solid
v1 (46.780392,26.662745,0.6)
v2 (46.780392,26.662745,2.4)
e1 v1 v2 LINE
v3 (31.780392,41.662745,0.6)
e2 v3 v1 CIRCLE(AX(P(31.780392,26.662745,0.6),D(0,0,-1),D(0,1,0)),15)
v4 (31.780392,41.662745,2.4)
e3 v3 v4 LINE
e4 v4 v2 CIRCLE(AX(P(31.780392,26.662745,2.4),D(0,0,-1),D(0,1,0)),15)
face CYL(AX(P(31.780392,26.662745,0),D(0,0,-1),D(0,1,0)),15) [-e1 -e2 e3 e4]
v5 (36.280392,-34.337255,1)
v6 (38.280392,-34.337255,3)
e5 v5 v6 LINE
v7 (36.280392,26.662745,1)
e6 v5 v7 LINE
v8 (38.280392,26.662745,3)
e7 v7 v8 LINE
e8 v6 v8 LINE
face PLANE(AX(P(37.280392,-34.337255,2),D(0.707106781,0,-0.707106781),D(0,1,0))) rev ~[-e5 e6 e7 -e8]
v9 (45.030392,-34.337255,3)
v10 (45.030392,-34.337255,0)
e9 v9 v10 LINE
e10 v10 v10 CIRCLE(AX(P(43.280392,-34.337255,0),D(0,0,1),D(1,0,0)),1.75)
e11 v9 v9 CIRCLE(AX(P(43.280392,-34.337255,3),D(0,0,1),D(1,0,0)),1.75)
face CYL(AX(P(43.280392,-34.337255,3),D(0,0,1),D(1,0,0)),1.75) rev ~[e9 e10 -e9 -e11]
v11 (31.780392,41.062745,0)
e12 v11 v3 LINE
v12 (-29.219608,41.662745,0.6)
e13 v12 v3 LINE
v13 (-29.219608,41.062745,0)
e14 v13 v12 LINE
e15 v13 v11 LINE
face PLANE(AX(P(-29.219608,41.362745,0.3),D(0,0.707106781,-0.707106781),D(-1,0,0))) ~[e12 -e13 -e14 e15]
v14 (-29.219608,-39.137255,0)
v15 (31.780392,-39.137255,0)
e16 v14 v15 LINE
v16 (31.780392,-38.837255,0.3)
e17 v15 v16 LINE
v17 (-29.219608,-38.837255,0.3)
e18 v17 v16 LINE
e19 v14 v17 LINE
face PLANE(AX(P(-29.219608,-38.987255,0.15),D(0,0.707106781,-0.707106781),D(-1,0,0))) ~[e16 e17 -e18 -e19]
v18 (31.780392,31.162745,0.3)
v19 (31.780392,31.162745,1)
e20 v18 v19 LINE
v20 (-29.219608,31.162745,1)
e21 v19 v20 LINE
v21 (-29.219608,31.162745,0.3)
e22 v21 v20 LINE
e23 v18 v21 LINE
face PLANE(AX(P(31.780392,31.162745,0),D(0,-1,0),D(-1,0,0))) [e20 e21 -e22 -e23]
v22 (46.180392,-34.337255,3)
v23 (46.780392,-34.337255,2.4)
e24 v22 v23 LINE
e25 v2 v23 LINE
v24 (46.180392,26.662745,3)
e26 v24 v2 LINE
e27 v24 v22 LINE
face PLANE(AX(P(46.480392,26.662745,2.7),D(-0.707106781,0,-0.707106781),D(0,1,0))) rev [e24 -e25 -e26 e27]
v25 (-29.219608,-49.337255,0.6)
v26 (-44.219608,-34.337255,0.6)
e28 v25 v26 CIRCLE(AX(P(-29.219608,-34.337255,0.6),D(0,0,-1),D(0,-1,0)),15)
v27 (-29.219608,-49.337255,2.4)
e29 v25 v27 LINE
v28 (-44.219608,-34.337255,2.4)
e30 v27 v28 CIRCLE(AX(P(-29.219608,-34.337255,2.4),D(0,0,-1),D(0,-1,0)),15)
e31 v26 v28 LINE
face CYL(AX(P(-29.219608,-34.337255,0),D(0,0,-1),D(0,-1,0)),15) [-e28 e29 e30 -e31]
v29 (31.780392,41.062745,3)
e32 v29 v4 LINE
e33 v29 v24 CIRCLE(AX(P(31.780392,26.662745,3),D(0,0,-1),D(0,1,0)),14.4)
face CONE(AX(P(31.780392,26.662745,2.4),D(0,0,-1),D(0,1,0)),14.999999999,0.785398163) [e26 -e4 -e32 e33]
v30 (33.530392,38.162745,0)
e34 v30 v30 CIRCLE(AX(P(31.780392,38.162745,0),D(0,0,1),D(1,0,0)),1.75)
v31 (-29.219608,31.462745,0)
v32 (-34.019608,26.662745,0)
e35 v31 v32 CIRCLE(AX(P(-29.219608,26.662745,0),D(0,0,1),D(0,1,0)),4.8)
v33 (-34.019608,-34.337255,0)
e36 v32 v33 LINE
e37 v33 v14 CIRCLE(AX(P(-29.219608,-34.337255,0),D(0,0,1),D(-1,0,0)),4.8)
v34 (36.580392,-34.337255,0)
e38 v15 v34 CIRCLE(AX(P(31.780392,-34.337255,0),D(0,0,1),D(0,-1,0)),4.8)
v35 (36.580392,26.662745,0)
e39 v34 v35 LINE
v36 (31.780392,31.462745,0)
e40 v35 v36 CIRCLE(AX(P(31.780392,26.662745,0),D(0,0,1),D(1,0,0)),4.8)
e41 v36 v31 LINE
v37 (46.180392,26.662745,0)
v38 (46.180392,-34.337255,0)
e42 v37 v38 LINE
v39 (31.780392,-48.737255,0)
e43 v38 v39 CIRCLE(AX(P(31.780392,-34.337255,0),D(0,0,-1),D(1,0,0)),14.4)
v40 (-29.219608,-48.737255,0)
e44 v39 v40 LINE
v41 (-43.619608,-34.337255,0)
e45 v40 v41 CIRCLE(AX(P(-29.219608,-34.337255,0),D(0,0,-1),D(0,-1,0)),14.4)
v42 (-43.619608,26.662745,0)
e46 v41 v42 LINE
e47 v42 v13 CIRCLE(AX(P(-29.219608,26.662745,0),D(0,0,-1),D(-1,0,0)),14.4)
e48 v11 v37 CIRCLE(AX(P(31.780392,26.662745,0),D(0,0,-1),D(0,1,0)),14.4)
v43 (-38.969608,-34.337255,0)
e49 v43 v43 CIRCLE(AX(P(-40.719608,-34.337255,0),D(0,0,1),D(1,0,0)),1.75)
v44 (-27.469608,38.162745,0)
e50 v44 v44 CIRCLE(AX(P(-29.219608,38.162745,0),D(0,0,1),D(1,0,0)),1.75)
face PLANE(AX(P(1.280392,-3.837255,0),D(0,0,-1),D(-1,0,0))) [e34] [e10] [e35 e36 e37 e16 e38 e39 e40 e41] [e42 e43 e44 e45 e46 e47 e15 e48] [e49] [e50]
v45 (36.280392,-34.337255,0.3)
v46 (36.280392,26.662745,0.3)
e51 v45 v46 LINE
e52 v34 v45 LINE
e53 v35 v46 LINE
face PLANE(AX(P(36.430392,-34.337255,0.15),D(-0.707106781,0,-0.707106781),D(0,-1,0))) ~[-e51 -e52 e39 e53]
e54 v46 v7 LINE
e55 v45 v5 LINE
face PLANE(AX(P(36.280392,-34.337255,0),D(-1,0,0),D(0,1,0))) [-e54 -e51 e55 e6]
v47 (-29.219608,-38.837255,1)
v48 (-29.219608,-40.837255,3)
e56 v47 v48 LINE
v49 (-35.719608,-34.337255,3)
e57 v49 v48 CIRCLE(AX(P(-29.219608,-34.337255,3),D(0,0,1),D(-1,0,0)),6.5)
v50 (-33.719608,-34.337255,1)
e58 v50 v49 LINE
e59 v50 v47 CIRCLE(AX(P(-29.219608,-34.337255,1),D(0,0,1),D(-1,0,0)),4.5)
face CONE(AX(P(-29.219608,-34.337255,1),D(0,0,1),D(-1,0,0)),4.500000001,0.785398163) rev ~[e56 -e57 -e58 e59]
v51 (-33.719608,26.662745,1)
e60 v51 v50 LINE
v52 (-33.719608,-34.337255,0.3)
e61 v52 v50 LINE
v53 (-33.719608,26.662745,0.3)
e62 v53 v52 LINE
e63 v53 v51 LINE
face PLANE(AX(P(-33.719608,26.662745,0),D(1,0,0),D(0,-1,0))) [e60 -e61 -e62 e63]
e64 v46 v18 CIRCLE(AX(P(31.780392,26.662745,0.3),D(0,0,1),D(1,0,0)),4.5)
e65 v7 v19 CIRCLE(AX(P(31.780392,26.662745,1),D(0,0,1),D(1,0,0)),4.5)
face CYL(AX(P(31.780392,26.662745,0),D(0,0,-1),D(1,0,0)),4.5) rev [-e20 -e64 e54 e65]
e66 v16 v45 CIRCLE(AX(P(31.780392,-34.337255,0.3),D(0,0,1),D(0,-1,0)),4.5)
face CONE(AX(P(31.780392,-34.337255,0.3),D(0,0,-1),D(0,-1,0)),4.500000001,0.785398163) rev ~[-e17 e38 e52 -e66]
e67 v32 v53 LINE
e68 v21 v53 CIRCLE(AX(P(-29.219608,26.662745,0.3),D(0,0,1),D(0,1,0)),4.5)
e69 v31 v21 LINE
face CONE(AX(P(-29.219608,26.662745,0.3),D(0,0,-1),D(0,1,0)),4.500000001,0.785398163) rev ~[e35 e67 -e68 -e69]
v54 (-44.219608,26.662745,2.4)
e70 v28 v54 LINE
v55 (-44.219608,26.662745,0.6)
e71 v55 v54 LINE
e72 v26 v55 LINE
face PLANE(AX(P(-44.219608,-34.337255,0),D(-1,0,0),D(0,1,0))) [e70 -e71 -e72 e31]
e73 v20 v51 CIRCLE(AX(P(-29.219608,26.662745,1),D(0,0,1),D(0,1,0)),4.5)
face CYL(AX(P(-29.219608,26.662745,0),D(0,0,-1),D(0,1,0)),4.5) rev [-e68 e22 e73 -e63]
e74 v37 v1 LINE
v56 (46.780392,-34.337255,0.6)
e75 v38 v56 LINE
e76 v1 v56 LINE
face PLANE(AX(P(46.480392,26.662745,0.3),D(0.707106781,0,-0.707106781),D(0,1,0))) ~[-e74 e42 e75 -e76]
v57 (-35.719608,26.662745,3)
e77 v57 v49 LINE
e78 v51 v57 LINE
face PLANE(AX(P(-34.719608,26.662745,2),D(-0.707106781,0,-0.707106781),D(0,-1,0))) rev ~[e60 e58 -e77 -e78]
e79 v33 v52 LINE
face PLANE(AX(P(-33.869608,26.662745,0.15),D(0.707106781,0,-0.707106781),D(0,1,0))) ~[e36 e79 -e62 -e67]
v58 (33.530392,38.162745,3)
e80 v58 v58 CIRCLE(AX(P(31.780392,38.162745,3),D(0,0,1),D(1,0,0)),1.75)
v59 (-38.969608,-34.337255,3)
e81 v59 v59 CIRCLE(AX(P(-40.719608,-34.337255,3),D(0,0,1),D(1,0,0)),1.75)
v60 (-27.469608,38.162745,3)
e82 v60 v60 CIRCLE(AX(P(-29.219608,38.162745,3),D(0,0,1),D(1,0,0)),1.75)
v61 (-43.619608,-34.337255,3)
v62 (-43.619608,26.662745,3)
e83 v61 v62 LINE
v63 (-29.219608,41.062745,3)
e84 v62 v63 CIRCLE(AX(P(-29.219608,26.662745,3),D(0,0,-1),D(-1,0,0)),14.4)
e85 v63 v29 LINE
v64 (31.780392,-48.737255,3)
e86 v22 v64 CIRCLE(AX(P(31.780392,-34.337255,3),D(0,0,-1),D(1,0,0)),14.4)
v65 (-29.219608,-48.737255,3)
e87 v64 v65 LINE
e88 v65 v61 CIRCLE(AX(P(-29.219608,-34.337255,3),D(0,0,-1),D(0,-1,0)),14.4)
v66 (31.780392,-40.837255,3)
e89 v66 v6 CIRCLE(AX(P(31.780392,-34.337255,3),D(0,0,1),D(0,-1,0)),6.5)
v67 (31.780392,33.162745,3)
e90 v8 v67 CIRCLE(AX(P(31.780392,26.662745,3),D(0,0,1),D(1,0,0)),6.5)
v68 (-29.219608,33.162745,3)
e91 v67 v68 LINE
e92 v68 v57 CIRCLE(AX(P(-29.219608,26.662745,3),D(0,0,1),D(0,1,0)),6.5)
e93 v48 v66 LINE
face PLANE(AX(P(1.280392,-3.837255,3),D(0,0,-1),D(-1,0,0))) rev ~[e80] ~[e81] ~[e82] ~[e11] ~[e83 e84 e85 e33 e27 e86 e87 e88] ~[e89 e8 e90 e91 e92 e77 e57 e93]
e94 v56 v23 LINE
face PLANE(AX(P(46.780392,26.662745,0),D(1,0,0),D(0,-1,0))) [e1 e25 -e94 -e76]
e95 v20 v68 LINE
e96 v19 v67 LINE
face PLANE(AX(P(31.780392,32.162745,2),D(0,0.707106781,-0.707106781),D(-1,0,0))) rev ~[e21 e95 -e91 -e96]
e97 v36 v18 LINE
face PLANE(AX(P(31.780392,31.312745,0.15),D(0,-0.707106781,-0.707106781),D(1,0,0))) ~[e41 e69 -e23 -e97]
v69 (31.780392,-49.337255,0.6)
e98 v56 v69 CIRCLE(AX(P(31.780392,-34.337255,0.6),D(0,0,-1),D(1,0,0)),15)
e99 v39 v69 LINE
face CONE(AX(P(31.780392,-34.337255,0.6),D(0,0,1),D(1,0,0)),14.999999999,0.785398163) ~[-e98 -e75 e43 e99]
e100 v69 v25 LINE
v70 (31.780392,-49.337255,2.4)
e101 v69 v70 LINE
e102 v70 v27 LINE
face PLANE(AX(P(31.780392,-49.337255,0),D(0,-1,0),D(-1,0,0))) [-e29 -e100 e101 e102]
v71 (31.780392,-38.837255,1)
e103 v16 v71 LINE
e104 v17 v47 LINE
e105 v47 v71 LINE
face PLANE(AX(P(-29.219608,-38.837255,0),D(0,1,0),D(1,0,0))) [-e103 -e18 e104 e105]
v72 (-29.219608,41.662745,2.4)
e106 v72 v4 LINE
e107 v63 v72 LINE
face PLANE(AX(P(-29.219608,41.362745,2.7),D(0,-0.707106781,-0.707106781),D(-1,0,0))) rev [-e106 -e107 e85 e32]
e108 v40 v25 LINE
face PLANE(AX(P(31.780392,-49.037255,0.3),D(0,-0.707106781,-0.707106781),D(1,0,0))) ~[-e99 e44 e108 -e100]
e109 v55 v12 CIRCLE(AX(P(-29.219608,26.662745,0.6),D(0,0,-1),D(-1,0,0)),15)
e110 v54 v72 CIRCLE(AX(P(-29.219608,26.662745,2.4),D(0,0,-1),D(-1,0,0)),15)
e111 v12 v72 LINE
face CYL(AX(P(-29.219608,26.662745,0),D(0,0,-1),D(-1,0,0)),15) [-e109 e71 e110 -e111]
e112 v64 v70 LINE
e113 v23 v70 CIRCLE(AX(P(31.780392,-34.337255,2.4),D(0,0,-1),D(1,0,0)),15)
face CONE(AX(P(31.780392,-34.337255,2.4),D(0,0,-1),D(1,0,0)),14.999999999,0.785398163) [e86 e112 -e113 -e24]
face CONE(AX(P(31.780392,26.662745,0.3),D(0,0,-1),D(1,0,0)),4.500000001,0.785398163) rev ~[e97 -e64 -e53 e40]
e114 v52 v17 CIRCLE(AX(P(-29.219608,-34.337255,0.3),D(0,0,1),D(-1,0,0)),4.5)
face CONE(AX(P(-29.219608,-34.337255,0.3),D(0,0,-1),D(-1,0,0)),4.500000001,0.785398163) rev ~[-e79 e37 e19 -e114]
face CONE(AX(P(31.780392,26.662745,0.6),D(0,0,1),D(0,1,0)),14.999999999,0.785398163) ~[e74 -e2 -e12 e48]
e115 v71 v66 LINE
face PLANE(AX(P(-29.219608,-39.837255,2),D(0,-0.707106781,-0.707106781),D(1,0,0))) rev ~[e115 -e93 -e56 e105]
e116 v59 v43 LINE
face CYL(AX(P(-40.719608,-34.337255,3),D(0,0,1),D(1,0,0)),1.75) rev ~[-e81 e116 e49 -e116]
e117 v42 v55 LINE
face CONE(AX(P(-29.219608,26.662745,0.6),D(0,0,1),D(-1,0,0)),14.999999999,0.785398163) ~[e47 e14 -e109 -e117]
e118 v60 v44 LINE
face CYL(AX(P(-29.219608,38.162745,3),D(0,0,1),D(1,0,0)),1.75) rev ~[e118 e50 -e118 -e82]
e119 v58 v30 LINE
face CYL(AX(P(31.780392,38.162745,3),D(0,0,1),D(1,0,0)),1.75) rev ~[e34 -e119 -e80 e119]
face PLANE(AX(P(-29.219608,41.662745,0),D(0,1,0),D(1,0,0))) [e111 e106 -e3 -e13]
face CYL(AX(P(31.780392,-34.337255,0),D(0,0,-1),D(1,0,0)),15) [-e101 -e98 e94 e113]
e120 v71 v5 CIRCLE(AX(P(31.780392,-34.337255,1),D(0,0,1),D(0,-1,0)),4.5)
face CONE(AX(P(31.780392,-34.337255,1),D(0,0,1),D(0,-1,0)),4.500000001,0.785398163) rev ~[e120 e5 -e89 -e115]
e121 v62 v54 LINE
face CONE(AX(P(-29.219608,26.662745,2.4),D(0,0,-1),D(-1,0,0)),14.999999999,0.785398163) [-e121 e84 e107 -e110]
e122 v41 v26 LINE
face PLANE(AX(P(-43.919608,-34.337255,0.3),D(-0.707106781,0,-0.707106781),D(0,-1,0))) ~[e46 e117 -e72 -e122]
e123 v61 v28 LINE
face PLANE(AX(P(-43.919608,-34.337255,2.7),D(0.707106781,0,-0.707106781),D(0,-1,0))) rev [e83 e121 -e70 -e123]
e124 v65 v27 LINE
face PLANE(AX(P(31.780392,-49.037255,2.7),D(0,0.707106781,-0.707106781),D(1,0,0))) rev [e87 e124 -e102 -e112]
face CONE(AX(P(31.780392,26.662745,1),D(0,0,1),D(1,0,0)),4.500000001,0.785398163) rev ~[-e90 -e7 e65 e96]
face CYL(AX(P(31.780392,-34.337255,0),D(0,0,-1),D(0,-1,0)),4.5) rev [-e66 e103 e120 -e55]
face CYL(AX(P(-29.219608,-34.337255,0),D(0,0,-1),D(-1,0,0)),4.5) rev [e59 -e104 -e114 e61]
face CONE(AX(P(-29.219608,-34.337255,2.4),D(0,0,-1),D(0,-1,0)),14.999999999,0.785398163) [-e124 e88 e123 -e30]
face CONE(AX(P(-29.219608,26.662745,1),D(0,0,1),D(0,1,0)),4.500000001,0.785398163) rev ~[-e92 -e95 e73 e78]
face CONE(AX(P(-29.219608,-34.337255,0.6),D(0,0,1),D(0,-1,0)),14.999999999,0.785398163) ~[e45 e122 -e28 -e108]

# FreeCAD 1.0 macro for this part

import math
import FreeCAD as App
import Part
import Sketcher

V = App.Vector


def edges_at(feature, points):
    """Names of the edges that pass closest to the given points."""
    edges = feature.Shape.Edges
    near = lambda p: min(range(len(edges)), key=lambda i: edges[i].distToShape(Part.Vertex(*p))[0])
    return sorted({f"Edge{near(p) + 1}" for p in points})

doc = App.newDocument("Part")
body = doc.addObject("PartDesign::Body", "Body")

# Sketch on XY plane
sketch1 = doc.addObject("Sketcher::SketchObject", "Sketch")
body.addObject(sketch1)
sketch1.AttachmentSupport = (doc.XY_Plane, [""])
sketch1.MapMode = "FlatFace"
sketch1.addGeometry(Part.LineSegment(V(-44.219608, 26.662745, 0), V(-44.219608, -34.337255, 0)), False)
sketch1.addGeometry(Part.ArcOfCircle(Part.Circle(V(-29.219608, -34.337255, 0), V(0, 0, 1), 15), math.radians(180), math.radians(270)), False)
sketch1.addGeometry(Part.LineSegment(V(-29.219608, -49.337255, 0), V(31.780392, -49.337255, 0)), False)
sketch1.addGeometry(Part.ArcOfCircle(Part.Circle(V(31.780392, -34.337255, 0), V(0, 0, 1), 15), math.radians(-90), math.radians(0)), False)
sketch1.addGeometry(Part.LineSegment(V(46.780392, -34.337255, 0), V(46.780392, 26.662745, 0)), False)
sketch1.addGeometry(Part.ArcOfCircle(Part.Circle(V(31.780392, 26.662745, 0), V(0, 0, 1), 15), math.radians(0), math.radians(90)), False)
sketch1.addGeometry(Part.LineSegment(V(31.780392, 41.662745, 0), V(-29.219608, 41.662745, 0)), False)
sketch1.addGeometry(Part.ArcOfCircle(Part.Circle(V(-29.219608, 26.662745, 0), V(0, 0, 1), 15), math.radians(90), math.radians(180)), False)
sketch1.addGeometry(Part.Circle(V(43.280392, -34.337255, 0), V(0, 0, 1), 1.25), False)
sketch1.addGeometry(Part.Circle(V(-40.719608, -34.337255, 0), V(0, 0, 1), 1.25), False)
sketch1.addGeometry(Part.LineSegment(V(-29.219608, 31.162745, 0), V(31.780392, 31.162745, 0)), False)
sketch1.addGeometry(Part.ArcOfCircle(Part.Circle(V(31.780392, 26.662745, 0), V(0, 0, 1), 4.5), math.radians(0), math.radians(90)), False)
sketch1.addGeometry(Part.LineSegment(V(36.280392, 26.662745, 0), V(36.280392, -34.337255, 0)), False)
sketch1.addGeometry(Part.ArcOfCircle(Part.Circle(V(31.780392, -34.337255, 0), V(0, 0, 1), 4.5), math.radians(-90), math.radians(0)), False)
sketch1.addGeometry(Part.LineSegment(V(31.780392, -38.837255, 0), V(-29.219608, -38.837255, 0)), False)
sketch1.addGeometry(Part.ArcOfCircle(Part.Circle(V(-29.219608, -34.337255, 0), V(0, 0, 1), 4.5), math.radians(-180), math.radians(-90)), False)
sketch1.addGeometry(Part.LineSegment(V(-33.719608, -34.337255, 0), V(-33.719608, 26.662745, 0)), False)
sketch1.addGeometry(Part.ArcOfCircle(Part.Circle(V(-29.219608, 26.662745, 0), V(0, 0, 1), 4.5), math.radians(90), math.radians(180)), False)
sketch1.addGeometry(Part.Circle(V(31.780392, 38.162745, 0), V(0, 0, 1), 1.25), False)
sketch1.addGeometry(Part.Circle(V(-29.219608, 38.162745, 0), V(0, 0, 1), 1.25), False)
sketch1.addConstraint(Sketcher.Constraint("Tangent", 0, 2, 1, 1))
sketch1.addConstraint(Sketcher.Constraint("Tangent", 1, 2, 2, 1))
sketch1.addConstraint(Sketcher.Constraint("Tangent", 2, 2, 3, 1))
sketch1.addConstraint(Sketcher.Constraint("Tangent", 3, 2, 4, 1))
sketch1.addConstraint(Sketcher.Constraint("Tangent", 4, 2, 5, 1))
sketch1.addConstraint(Sketcher.Constraint("Tangent", 5, 2, 6, 1))
sketch1.addConstraint(Sketcher.Constraint("Tangent", 6, 2, 7, 1))
sketch1.addConstraint(Sketcher.Constraint("Tangent", 7, 2, 0, 1))
sketch1.addConstraint(Sketcher.Constraint("Tangent", 10, 2, 11, 2))
sketch1.addConstraint(Sketcher.Constraint("Tangent", 11, 1, 12, 1))
sketch1.addConstraint(Sketcher.Constraint("Tangent", 12, 2, 13, 2))
sketch1.addConstraint(Sketcher.Constraint("Tangent", 13, 1, 14, 1))
sketch1.addConstraint(Sketcher.Constraint("Tangent", 14, 2, 15, 2))
sketch1.addConstraint(Sketcher.Constraint("Tangent", 15, 1, 16, 1))
sketch1.addConstraint(Sketcher.Constraint("Tangent", 16, 2, 17, 2))
sketch1.addConstraint(Sketcher.Constraint("Tangent", 17, 1, 10, 1))
sketch1.addConstraint(Sketcher.Constraint("Vertical", 0))
sketch1.addConstraint(Sketcher.Constraint("Horizontal", 2))
sketch1.addConstraint(Sketcher.Constraint("Vertical", 4))
sketch1.addConstraint(Sketcher.Constraint("Horizontal", 6))
sketch1.addConstraint(Sketcher.Constraint("Horizontal", 10))
sketch1.addConstraint(Sketcher.Constraint("Vertical", 12))
sketch1.addConstraint(Sketcher.Constraint("Horizontal", 14))
sketch1.addConstraint(Sketcher.Constraint("Vertical", 16))
sketch1.addConstraint(Sketcher.Constraint("Coincident", 11, 3, 5, 3))
sketch1.addConstraint(Sketcher.Constraint("Coincident", 13, 3, 3, 3))
sketch1.addConstraint(Sketcher.Constraint("Coincident", 15, 3, 1, 3))
sketch1.addConstraint(Sketcher.Constraint("Equal", 1, 3))
sketch1.addConstraint(Sketcher.Constraint("Equal", 3, 5))
sketch1.addConstraint(Sketcher.Constraint("Equal", 5, 7))
sketch1.addConstraint(Sketcher.Constraint("Equal", 8, 9))
sketch1.addConstraint(Sketcher.Constraint("Equal", 15, 17))
sketch1.addConstraint(Sketcher.Constraint("Equal", 9, 18))
sketch1.addConstraint(Sketcher.Constraint("Equal", 18, 19))
sketch1.addConstraint(Sketcher.Constraint("Horizontal", 3, 3, 8, 3))
sketch1.addConstraint(Sketcher.Constraint("Horizontal", 8, 3, 9, 3))
sketch1.addConstraint(Sketcher.Constraint("Horizontal", 18, 3, 19, 3))
sketch1.addConstraint(Sketcher.Constraint("Vertical", 13, 3, 18, 3))
sketch1.addConstraint(Sketcher.Constraint("Vertical", 17, 3, 19, 3))
sketch1.addConstraint(Sketcher.Constraint("Equal", 14, 0))
sketch1.addConstraint(Sketcher.Constraint("Radius", 1, 15.0))
sketch1.addConstraint(Sketcher.Constraint("Diameter", 8, 2.5))
sketch1.addConstraint(Sketcher.Constraint("Radius", 11, 4.5))
sketch1.addConstraint(Sketcher.Constraint("DistanceX", 2, 1, 2, 2, 61.0))
sketch1.addConstraint(Sketcher.Constraint("DistanceX", 9, 3, 8, 3, 84.0))
sketch1.addConstraint(Sketcher.Constraint("DistanceY", 10, 2, 18, 3, 7.0))
sketch1.addConstraint(Sketcher.Constraint("DistanceX", 12, 2, 8, 3, 7.0))
sketch1.addConstraint(Sketcher.Constraint("DistanceX", 1, 3, -1, 1, 29.219608))
sketch1.addConstraint(Sketcher.Constraint("DistanceY", 1, 3, -1, 1, 34.337255))
pad1 = doc.addObject("PartDesign::Pad", "Pad")
body.addObject(pad1)
pad1.Profile = sketch1
pad1.Length = 3
doc.recompute()

chamfer = doc.addObject("PartDesign::Chamfer", "Chamfer")
body.addObject(chamfer)
chamfer.Base = (pad1, edges_at(pad1, [
    (-32.402, 29.845, 3),
    (1.28, 31.163, 3),
    (34.962, 29.845, 3),
    (36.28, -3.837, 3),
    (34.962, -37.519, 3),
    (1.28, -38.837, 3),
    (-32.402, -37.519, 3),
    (-33.72, -3.837, 3),
]))
chamfer.Size = 2
doc.recompute()

chamfer2 = doc.addObject("PartDesign::Chamfer", "Chamfer001")
body.addObject(chamfer2)
chamfer2.Base = (chamfer, edges_at(chamfer, [
    (1.28, 41.663, 3),
    (-39.826, 37.269, 3),
    (-39.826, 37.269, 0),
    (1.28, 41.663, 0),
    (42.387, 37.269, 0),
    (46.78, -3.837, 0),
    (42.387, -44.944, 0),
    (1.28, -49.337, 0),
    (-39.826, -44.944, 0),
    (-44.22, -3.837, 0),
    (-44.22, -3.837, 3),
    (-39.826, -44.944, 3),
    (1.28, -49.337, 3),
    (42.387, -44.944, 3),
    (46.78, -3.837, 3),
    (42.387, 37.269, 3),
]))
chamfer2.Size = 0.6
doc.recompute()

chamfer3 = doc.addObject("PartDesign::Chamfer", "Chamfer002")
body.addObject(chamfer3)
chamfer3.Base = (chamfer2, edges_at(chamfer2, [
    (-33.72, -3.837, 0),
    (-32.402, -37.519, 0),
    (1.28, -38.837, 0),
    (34.962, -37.519, 0),
    (36.28, -3.837, 0),
    (34.962, 29.845, 0),
    (1.28, 31.163, 0),
    (-32.402, 29.845, 0),
]))
chamfer3.Size = 0.3

# Sketch on XY plane
sketch2 = doc.addObject("Sketcher::SketchObject", "Sketch001")
body.addObject(sketch2)
sketch2.AttachmentSupport = (doc.XY_Plane, [""])
sketch2.MapMode = "FlatFace"
sketch2.AttachmentOffset = App.Placement(V(0, 0, 3), App.Rotation())
sketch2.addGeometry(Part.Circle(V(-29.219608, 38.162745, 0), V(0, 0, 1), 1.75), False)
sketch2.addGeometry(Part.Circle(V(31.780392, 38.162745, 0), V(0, 0, 1), 1.75), False)
sketch2.addGeometry(Part.Circle(V(-40.719608, -34.337255, 0), V(0, 0, 1), 1.75), False)
sketch2.addGeometry(Part.Circle(V(43.280392, -34.337255, 0), V(0, 0, 1), 1.75), False)
sketch2.addConstraint(Sketcher.Constraint("Equal", 0, 1))
sketch2.addConstraint(Sketcher.Constraint("Equal", 1, 2))
sketch2.addConstraint(Sketcher.Constraint("Equal", 2, 3))
sketch2.addConstraint(Sketcher.Constraint("Horizontal", 0, 3, 1, 3))
sketch2.addConstraint(Sketcher.Constraint("Horizontal", 2, 3, 3, 3))
sketch2.addConstraint(Sketcher.Constraint("Diameter", 0, 3.5))
sketch2.addConstraint(Sketcher.Constraint("DistanceX", 0, 3, 1, 3, 61.0))
sketch2.addConstraint(Sketcher.Constraint("DistanceX", 2, 3, 3, 3, 84.0))
sketch2.addConstraint(Sketcher.Constraint("DistanceX", 2, 3, 0, 3, 11.5))
sketch2.addConstraint(Sketcher.Constraint("DistanceY", 2, 3, 0, 3, 72.5))
sketch2.addConstraint(Sketcher.Constraint("DistanceX", 0, 3, -1, 1, 29.219608))
sketch2.addConstraint(Sketcher.Constraint("DistanceY", -1, 1, 0, 3, 38.162745))
pocket1 = doc.addObject("PartDesign::Pocket", "Pocket")
body.addObject(pocket1)
pocket1.Profile = sketch2
pocket1.Type = "ThroughAll"

doc.recompute()
